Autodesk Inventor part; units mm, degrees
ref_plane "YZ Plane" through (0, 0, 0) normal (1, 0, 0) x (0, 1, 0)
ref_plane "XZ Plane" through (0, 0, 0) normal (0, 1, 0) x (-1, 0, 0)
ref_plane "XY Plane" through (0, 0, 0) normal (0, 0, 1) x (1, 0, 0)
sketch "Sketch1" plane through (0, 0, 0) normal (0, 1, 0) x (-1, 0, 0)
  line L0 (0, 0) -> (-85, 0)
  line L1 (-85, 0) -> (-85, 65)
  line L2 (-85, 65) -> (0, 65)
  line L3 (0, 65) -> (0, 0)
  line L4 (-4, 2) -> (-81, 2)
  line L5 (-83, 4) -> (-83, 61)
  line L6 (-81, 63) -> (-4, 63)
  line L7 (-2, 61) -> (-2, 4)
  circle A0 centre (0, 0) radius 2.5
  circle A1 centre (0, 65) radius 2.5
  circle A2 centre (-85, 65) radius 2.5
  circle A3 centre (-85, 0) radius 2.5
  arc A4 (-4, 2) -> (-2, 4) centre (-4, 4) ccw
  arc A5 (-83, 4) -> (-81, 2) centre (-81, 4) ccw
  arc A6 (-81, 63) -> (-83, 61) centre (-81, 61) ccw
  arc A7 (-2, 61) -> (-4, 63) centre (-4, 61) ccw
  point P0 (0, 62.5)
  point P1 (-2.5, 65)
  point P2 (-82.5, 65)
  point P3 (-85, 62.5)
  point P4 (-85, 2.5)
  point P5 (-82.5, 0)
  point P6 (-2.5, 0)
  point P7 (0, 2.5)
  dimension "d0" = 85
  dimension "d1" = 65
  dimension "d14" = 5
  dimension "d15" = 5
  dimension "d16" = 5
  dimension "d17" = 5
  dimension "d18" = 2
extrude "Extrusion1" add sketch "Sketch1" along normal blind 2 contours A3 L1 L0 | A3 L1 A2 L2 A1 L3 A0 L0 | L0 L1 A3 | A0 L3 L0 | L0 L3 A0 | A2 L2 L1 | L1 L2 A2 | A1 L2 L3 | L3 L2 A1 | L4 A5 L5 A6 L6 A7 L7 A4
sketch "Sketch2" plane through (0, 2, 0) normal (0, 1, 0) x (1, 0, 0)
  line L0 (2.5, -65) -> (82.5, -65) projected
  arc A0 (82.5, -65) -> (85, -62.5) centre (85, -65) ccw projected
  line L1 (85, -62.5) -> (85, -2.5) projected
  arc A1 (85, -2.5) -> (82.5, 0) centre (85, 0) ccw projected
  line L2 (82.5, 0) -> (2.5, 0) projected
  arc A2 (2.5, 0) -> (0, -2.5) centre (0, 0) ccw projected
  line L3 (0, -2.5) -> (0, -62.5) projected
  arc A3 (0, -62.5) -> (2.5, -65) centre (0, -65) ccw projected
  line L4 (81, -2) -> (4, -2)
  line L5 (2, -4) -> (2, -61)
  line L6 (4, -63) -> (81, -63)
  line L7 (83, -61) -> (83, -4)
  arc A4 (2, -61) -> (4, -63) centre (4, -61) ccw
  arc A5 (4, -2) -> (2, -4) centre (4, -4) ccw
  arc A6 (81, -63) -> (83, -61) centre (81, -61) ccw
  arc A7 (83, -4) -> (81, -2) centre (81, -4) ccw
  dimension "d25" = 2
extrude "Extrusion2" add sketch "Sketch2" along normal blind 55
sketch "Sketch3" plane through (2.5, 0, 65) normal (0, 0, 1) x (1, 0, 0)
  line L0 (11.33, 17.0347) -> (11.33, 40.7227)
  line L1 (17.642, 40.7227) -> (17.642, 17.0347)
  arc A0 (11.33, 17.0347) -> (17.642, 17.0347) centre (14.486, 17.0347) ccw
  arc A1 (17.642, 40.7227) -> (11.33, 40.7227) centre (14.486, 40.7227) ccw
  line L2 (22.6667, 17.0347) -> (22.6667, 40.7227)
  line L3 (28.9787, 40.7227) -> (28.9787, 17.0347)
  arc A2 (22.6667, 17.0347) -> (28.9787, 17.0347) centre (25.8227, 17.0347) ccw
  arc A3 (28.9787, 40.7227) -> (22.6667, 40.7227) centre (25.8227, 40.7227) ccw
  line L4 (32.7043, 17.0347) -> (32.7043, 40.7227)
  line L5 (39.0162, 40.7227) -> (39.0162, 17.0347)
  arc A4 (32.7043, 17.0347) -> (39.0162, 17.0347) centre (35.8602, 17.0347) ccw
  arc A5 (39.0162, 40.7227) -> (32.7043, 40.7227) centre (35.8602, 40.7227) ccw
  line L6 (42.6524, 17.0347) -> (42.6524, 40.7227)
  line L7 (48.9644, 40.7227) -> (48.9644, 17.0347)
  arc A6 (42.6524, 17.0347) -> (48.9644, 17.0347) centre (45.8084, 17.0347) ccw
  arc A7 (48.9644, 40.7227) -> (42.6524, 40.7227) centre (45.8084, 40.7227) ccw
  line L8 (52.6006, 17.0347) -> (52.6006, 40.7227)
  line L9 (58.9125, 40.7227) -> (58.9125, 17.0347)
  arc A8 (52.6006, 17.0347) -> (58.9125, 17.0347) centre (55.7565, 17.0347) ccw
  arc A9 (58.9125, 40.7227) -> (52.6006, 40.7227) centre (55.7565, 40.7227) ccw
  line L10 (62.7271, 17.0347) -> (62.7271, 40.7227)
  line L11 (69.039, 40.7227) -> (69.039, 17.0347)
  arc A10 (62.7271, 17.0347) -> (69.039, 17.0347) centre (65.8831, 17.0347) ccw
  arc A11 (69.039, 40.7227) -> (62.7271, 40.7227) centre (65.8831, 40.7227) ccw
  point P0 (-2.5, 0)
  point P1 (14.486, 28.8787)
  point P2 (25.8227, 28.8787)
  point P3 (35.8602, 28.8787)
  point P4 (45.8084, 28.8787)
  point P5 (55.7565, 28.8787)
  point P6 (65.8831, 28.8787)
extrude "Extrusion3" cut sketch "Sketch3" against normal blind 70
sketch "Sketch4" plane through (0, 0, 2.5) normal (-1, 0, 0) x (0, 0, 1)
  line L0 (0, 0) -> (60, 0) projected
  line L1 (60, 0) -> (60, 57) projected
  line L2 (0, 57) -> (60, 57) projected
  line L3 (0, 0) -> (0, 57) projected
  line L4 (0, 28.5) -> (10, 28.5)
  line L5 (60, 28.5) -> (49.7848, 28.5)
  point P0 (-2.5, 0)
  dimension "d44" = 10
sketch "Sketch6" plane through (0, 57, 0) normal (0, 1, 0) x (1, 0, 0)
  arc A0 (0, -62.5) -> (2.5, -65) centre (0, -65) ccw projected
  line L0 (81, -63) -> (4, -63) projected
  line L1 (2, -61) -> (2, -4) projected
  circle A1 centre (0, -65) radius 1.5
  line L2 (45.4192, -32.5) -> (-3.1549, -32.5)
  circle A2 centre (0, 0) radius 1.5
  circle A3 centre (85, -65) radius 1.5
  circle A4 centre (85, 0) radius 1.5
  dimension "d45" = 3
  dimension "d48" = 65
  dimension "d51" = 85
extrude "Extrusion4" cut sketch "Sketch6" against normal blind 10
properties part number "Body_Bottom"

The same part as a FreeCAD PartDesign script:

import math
import FreeCAD as App
import Part
import Sketcher

doc = App.newDocument("Part")
params = doc.addObject("Spreadsheet::Sheet", "Params")
for row, (alias, value) in enumerate([
    ("sketch1_radius", "2.5 mm"),
    ("pad1_length", "2 mm"),
    ("sketch2_radius", "2 mm"),
    ("sketch2_radius2", "2.5 mm"),
    ("sketch2_width", "80 mm"),
    ("sketch2_height", "60 mm"),
    ("pad2_length", "55 mm"),
    ("pocket1_length", "70 mm"),
    ("sketch4_diameter", "3 mm"),
    ("pocket2_length", "10 mm"),
], start=1):
    params.set(f"A{row}", alias)
    params.set(f"B{row}", "=" + value)
    params.setAlias(f"B{row}", alias)

body = doc.addObject("PartDesign::Body", "Body")

# Sketch on XZ plane
sketch1 = body.newObject("Sketcher::SketchObject", "Sketch")
sketch1.AttachmentSupport = (doc.getObject("XZ_Plane"), [""])
sketch1.MapMode = "FlatFace"
sketch1.addGeometry([
    Part.ArcOfCircle(Part.Circle(App.Vector(85, 0, 0), App.Vector(0, 0, 1), 2.5), math.radians(180), math.radians(450)),  # 0
    Part.LineSegment(App.Vector(82.5, 0, 0), App.Vector(2.5, 0, 0)),  # 1
    Part.ArcOfCircle(Part.Circle(App.Vector(0, 0, 0), App.Vector(0, 0, 1), 2.5), math.radians(90), math.radians(360)),  # 2
    Part.LineSegment(App.Vector(0, 2.5, 0), App.Vector(0, 62.5, 0)),  # 3
    Part.ArcOfCircle(Part.Circle(App.Vector(0, 65, 0), App.Vector(0, 0, 1), 2.5), math.radians(0), math.radians(270)),  # 4
    Part.LineSegment(App.Vector(2.5, 65, 0), App.Vector(82.5, 65, 0)),  # 5
    Part.ArcOfCircle(Part.Circle(App.Vector(85, 65, 0), App.Vector(0, 0, 1), 2.5), math.radians(-90), math.radians(180)),  # 6
    Part.LineSegment(App.Vector(85, 62.5, 0), App.Vector(85, 2.5, 0)),  # 7
], False)
sketch1.addConstraint([
    Sketcher.Constraint("Coincident", 0, 1, 1, 1),
    Sketcher.Constraint("Coincident", 1, 2, 2, 2),
    Sketcher.Constraint("Coincident", 2, 1, 3, 1),
    Sketcher.Constraint("Coincident", 3, 2, 4, 2),
    Sketcher.Constraint("Coincident", 4, 1, 5, 1),
    Sketcher.Constraint("Coincident", 5, 2, 6, 2),
    Sketcher.Constraint("Coincident", 6, 1, 7, 1),
    Sketcher.Constraint("Coincident", 7, 2, 0, 2),
    Sketcher.Constraint("Horizontal", 1),
    Sketcher.Constraint("Vertical", 3),
    Sketcher.Constraint("Horizontal", 5),
    Sketcher.Constraint("Vertical", 7),
    Sketcher.Constraint("Coincident", 2, 3, -1, 1),
    Sketcher.Constraint("Equal", 0, 2),
    Sketcher.Constraint("Equal", 2, 4),
    Sketcher.Constraint("Equal", 4, 6),
    Sketcher.Constraint("PointOnObject", 0, 3, -1),
    Sketcher.Constraint("PointOnObject", 4, 3, -2),
    Sketcher.Constraint("PointOnObject", 0, 1, -1),
    Sketcher.Constraint("PointOnObject", 2, 1, -2),
    Sketcher.Constraint("Horizontal", 4, 3, 6, 3),
    Sketcher.Constraint("Horizontal", 6, 3, 4, 1),
    Sketcher.Constraint("Vertical", 0, 3, 6, 3),
    Sketcher.Constraint("Vertical", 0, 3, 6, 1),
    Sketcher.Constraint("Radius", 0, 2.5),
    Sketcher.Constraint("DistanceX", -1, 1, 0, 3, 85.0),
    Sketcher.Constraint("DistanceY", -1, 1, 4, 3, 65.0),
])
sketch1.setExpression("Constraints[24]", "Params.sketch1_radius")
pad1 = body.newObject("PartDesign::Pad", "Pad")
pad1.Profile = sketch1
pad1.setExpression("Length", "Params.pad1_length")
pad1.Reversed = True

# Sketch on XZ plane
sketch2 = body.newObject("Sketcher::SketchObject", "Sketch001")
sketch2.AttachmentSupport = (doc.getObject("XZ_Plane"), [""])
sketch2.MapMode = "FlatFace"
sketch2.AttachmentOffset = App.Placement(App.Vector(0, 0, -2), App.Rotation())
sketch2.addGeometry([
    Part.ArcOfCircle(Part.Circle(App.Vector(0, 65, 0), App.Vector(0, 0, 1), 2.5), math.radians(0), math.radians(270)),  # 0
    Part.LineSegment(App.Vector(2.5, 65, 0), App.Vector(82.5, 65, 0)),  # 1
    Part.ArcOfCircle(Part.Circle(App.Vector(85, 65, 0), App.Vector(0, 0, 1), 2.5), math.radians(-90), math.radians(180)),  # 2
    Part.LineSegment(App.Vector(85, 62.5, 0), App.Vector(85, 2.5, 0)),  # 3
    Part.ArcOfCircle(Part.Circle(App.Vector(85, 0, 0), App.Vector(0, 0, 1), 2.5), math.radians(180), math.radians(450)),  # 4
    Part.LineSegment(App.Vector(82.5, 0, 0), App.Vector(2.5, 0, 0)),  # 5
    Part.ArcOfCircle(Part.Circle(App.Vector(0, 0, 0), App.Vector(0, 0, 1), 2.5), math.radians(90), math.radians(360)),  # 6
    Part.LineSegment(App.Vector(0, 2.5, 0), App.Vector(0, 62.5, 0)),  # 7
    Part.LineSegment(App.Vector(4, 2, 0), App.Vector(81, 2, 0)),  # 8
    Part.ArcOfCircle(Part.Circle(App.Vector(81, 4, 0), App.Vector(0, 0, 1), 2), math.radians(-90), math.radians(0)),  # 9
    Part.LineSegment(App.Vector(83, 4, 0), App.Vector(83, 61, 0)),  # 10
    Part.ArcOfCircle(Part.Circle(App.Vector(81, 61, 0), App.Vector(0, 0, 1), 2), math.radians(0), math.radians(90)),  # 11
    Part.LineSegment(App.Vector(81, 63, 0), App.Vector(4, 63, 0)),  # 12
    Part.ArcOfCircle(Part.Circle(App.Vector(4, 61, 0), App.Vector(0, 0, 1), 2), math.radians(90), math.radians(180)),  # 13
    Part.LineSegment(App.Vector(2, 61, 0), App.Vector(2, 4, 0)),  # 14
    Part.ArcOfCircle(Part.Circle(App.Vector(4, 4, 0), App.Vector(0, 0, 1), 2), math.radians(180), math.radians(270)),  # 15
], False)
sketch2.addConstraint([
    Sketcher.Constraint("Coincident", 0, 1, 1, 1),
    Sketcher.Constraint("Coincident", 1, 2, 2, 2),
    Sketcher.Constraint("Coincident", 2, 1, 3, 1),
    Sketcher.Constraint("Coincident", 3, 2, 4, 2),
    Sketcher.Constraint("Coincident", 4, 1, 5, 1),
    Sketcher.Constraint("Coincident", 5, 2, 6, 2),
    Sketcher.Constraint("Coincident", 6, 1, 7, 1),
    Sketcher.Constraint("Coincident", 7, 2, 0, 2),
    Sketcher.Constraint("Tangent", 8, 2, 9, 1),
    Sketcher.Constraint("Tangent", 9, 2, 10, 1),
    Sketcher.Constraint("Tangent", 10, 2, 11, 1),
    Sketcher.Constraint("Tangent", 11, 2, 12, 1),
    Sketcher.Constraint("Tangent", 12, 2, 13, 1),
    Sketcher.Constraint("Tangent", 13, 2, 14, 1),
    Sketcher.Constraint("Tangent", 14, 2, 15, 1),
    Sketcher.Constraint("Tangent", 15, 2, 8, 1),
    Sketcher.Constraint("Horizontal", 1),
    Sketcher.Constraint("Vertical", 3),
    Sketcher.Constraint("Horizontal", 5),
    Sketcher.Constraint("Vertical", 7),
    Sketcher.Constraint("Horizontal", 8),
    Sketcher.Constraint("Vertical", 10),
    Sketcher.Constraint("Horizontal", 12),
    Sketcher.Constraint("Vertical", 14),
    Sketcher.Constraint("Coincident", 6, 3, -1, 1),
    Sketcher.Constraint("Equal", 0, 2),
    Sketcher.Constraint("Equal", 2, 4),
    Sketcher.Constraint("Equal", 4, 6),
    Sketcher.Constraint("Equal", 9, 11),
    Sketcher.Constraint("Equal", 11, 13),
    Sketcher.Constraint("Equal", 13, 15),
    Sketcher.Constraint("PointOnObject", 0, 3, -2),
    Sketcher.Constraint("PointOnObject", 4, 3, -1),
    Sketcher.Constraint("PointOnObject", 4, 1, -1),
    Sketcher.Constraint("PointOnObject", 6, 1, -2),
    Sketcher.Constraint("Horizontal", 0, 3, 2, 3),
    Sketcher.Constraint("Horizontal", 2, 3, 0, 1),
    Sketcher.Constraint("Vertical", 2, 3, 4, 3),
    Sketcher.Constraint("Vertical", 4, 3, 2, 1),
    Sketcher.Constraint("Radius", 9, 2.0),
    Sketcher.Constraint("DistanceY", -1, 1, 8, 2, 2.0),
    Sketcher.Constraint("DistanceX", -1, 1, 13, 2, 2.0),
    Sketcher.Constraint("DistanceX", 9, 2, 3, 2, 2.0),
    Sketcher.Constraint("DistanceY", 11, 2, 1, 2, 2.0),
    Sketcher.Constraint("Radius", 0, 2.5),
    Sketcher.Constraint("DistanceX", 1, 1, 1, 2, 80.0),
    Sketcher.Constraint("DistanceY", 3, 2, 3, 1, 60.0),
])
sketch2.setExpression("Constraints[39]", "Params.sketch2_radius")
sketch2.setExpression("Constraints[44]", "Params.sketch2_radius2")
sketch2.setExpression("Constraints[45]", "Params.sketch2_width")
sketch2.setExpression("Constraints[46]", "Params.sketch2_height")
pad2 = body.newObject("PartDesign::Pad", "Pad001")
pad2.Profile = sketch2
pad2.setExpression("Length", "Params.pad2_length")
pad2.Reversed = True

# Sketch on XY plane
sketch3 = body.newObject("Sketcher::SketchObject", "Sketch002")
sketch3.AttachmentSupport = (doc.getObject("XY_Plane"), [""])
sketch3.MapMode = "FlatFace"
sketch3.AttachmentOffset = App.Placement(App.Vector(0, 0, 65), App.Rotation())
sketch3.addGeometry([
    Part.LineSegment(App.Vector(13.8, 40.7, 0), App.Vector(13.8, 17, 0)),  # 0
    Part.ArcOfCircle(Part.Circle(App.Vector(17, 17, 0), App.Vector(0, 0, 1), 3.2), math.radians(180), math.radians(360)),  # 1
    Part.LineSegment(App.Vector(20.1, 17, 0), App.Vector(20.1, 40.7, 0)),  # 2
    Part.ArcOfCircle(Part.Circle(App.Vector(17, 40.7, 0), App.Vector(0, 0, 1), 3.2), math.radians(0), math.radians(180)),  # 3
    Part.LineSegment(App.Vector(25.2, 40.7, 0), App.Vector(25.2, 17, 0)),  # 4
    Part.ArcOfCircle(Part.Circle(App.Vector(28.3, 17, 0), App.Vector(0, 0, 1), 3.2), math.radians(180), math.radians(360)),  # 5
    Part.LineSegment(App.Vector(31.5, 17, 0), App.Vector(31.5, 40.7, 0)),  # 6
    Part.ArcOfCircle(Part.Circle(App.Vector(28.3, 40.7, 0), App.Vector(0, 0, 1), 3.2), math.radians(0), math.radians(180)),  # 7
    Part.LineSegment(App.Vector(35.2, 40.7, 0), App.Vector(35.2, 17, 0)),  # 8
    Part.ArcOfCircle(Part.Circle(App.Vector(38.4, 17, 0), App.Vector(0, 0, 1), 3.2), math.radians(180), math.radians(360)),  # 9
    Part.LineSegment(App.Vector(41.5, 17, 0), App.Vector(41.5, 40.7, 0)),  # 10
    Part.ArcOfCircle(Part.Circle(App.Vector(38.4, 40.7, 0), App.Vector(0, 0, 1), 3.2), math.radians(0), math.radians(180)),  # 11
    Part.LineSegment(App.Vector(45.2, 40.7, 0), App.Vector(45.2, 17, 0)),  # 12
    Part.ArcOfCircle(Part.Circle(App.Vector(48.3, 17, 0), App.Vector(0, 0, 1), 3.2), math.radians(180), math.radians(360)),  # 13
    Part.LineSegment(App.Vector(51.5, 17, 0), App.Vector(51.5, 40.7, 0)),  # 14
    Part.ArcOfCircle(Part.Circle(App.Vector(48.3, 40.7, 0), App.Vector(0, 0, 1), 3.2), math.radians(0), math.radians(180)),  # 15
    Part.LineSegment(App.Vector(55.1, 40.7, 0), App.Vector(55.1, 17, 0)),  # 16
    Part.ArcOfCircle(Part.Circle(App.Vector(58.3, 17, 0), App.Vector(0, 0, 1), 3.2), math.radians(180), math.radians(360)),  # 17
    Part.LineSegment(App.Vector(61.4, 17, 0), App.Vector(61.4, 40.7, 0)),  # 18
    Part.ArcOfCircle(Part.Circle(App.Vector(58.3, 40.7, 0), App.Vector(0, 0, 1), 3.2), math.radians(0), math.radians(180)),  # 19
    Part.LineSegment(App.Vector(65.2, 40.7, 0), App.Vector(65.2, 17, 0)),  # 20
    Part.ArcOfCircle(Part.Circle(App.Vector(68.4, 17, 0), App.Vector(0, 0, 1), 3.2), math.radians(180), math.radians(360)),  # 21
    Part.LineSegment(App.Vector(71.5, 17, 0), App.Vector(71.5, 40.7, 0)),  # 22
    Part.ArcOfCircle(Part.Circle(App.Vector(68.4, 40.7, 0), App.Vector(0, 0, 1), 3.2), math.radians(0), math.radians(180)),  # 23
], False)
sketch3.addConstraint([
    Sketcher.Constraint("Tangent", 0, 2, 1, 1),
    Sketcher.Constraint("Tangent", 1, 2, 2, 1),
    Sketcher.Constraint("Tangent", 2, 2, 3, 1),
    Sketcher.Constraint("Tangent", 3, 2, 0, 1),
    Sketcher.Constraint("Tangent", 4, 2, 5, 1),
    Sketcher.Constraint("Tangent", 5, 2, 6, 1),
    Sketcher.Constraint("Tangent", 6, 2, 7, 1),
    Sketcher.Constraint("Tangent", 7, 2, 4, 1),
    Sketcher.Constraint("Tangent", 8, 2, 9, 1),
    Sketcher.Constraint("Tangent", 9, 2, 10, 1),
    Sketcher.Constraint("Tangent", 10, 2, 11, 1),
    Sketcher.Constraint("Tangent", 11, 2, 8, 1),
    Sketcher.Constraint("Tangent", 12, 2, 13, 1),
    Sketcher.Constraint("Tangent", 13, 2, 14, 1),
    Sketcher.Constraint("Tangent", 14, 2, 15, 1),
    Sketcher.Constraint("Tangent", 15, 2, 12, 1),
    Sketcher.Constraint("Tangent", 16, 2, 17, 1),
    Sketcher.Constraint("Tangent", 17, 2, 18, 1),
    Sketcher.Constraint("Tangent", 18, 2, 19, 1),
    Sketcher.Constraint("Tangent", 19, 2, 16, 1),
    Sketcher.Constraint("Tangent", 20, 2, 21, 1),
    Sketcher.Constraint("Tangent", 21, 2, 22, 1),
    Sketcher.Constraint("Tangent", 22, 2, 23, 1),
    Sketcher.Constraint("Tangent", 23, 2, 20, 1),
    Sketcher.Constraint("Vertical", 0),
    Sketcher.Constraint("Vertical", 2),
    Sketcher.Constraint("Vertical", 4),
    Sketcher.Constraint("Vertical", 6),
    Sketcher.Constraint("Vertical", 8),
    Sketcher.Constraint("Vertical", 10),
    Sketcher.Constraint("Vertical", 12),
    Sketcher.Constraint("Vertical", 14),
    Sketcher.Constraint("Vertical", 16),
    Sketcher.Constraint("Vertical", 18),
    Sketcher.Constraint("Vertical", 20),
    Sketcher.Constraint("Vertical", 22),
    Sketcher.Constraint("Equal", 3, 5),
    Sketcher.Constraint("Equal", 7, 9),
    Sketcher.Constraint("Equal", 11, 13),
    Sketcher.Constraint("Equal", 15, 17),
    Sketcher.Constraint("Equal", 19, 21),
    Sketcher.Constraint("Horizontal", 1, 3, 5, 3),
    Sketcher.Constraint("Horizontal", 3, 3, 7, 3),
    Sketcher.Constraint("Horizontal", 5, 3, 9, 3),
    Sketcher.Constraint("Horizontal", 7, 3, 11, 3),
    Sketcher.Constraint("Horizontal", 9, 3, 13, 3),
    Sketcher.Constraint("Horizontal", 11, 3, 15, 3),
    Sketcher.Constraint("Horizontal", 13, 3, 17, 3),
    Sketcher.Constraint("Horizontal", 15, 3, 19, 3),
    Sketcher.Constraint("Horizontal", 17, 3, 21, 3),
    Sketcher.Constraint("Horizontal", 19, 3, 23, 3),
    Sketcher.Constraint("Radius", 1, 3.156),
    Sketcher.Constraint("DistanceY", 0, 2, 0, 1, 23.688),
    Sketcher.Constraint("DistanceX", -1, 1, 0, 2, 13.83),
    Sketcher.Constraint("DistanceX", 15, 2, 18, 2, 16.26),
    Sketcher.Constraint("DistanceX", -1, 1, 21, 3, 68.383),
    Sketcher.Constraint("DistanceX", -1, 1, 9, 2, 41.516),
    Sketcher.Constraint("DistanceX", 8, 2, 13, 3, 13.104),
    Sketcher.Constraint("DistanceY", -1, 1, 1, 3, 17.0347),
    Sketcher.Constraint("DistanceX", -1, 1, 5, 3, 28.3227),
])
pocket1 = body.newObject("PartDesign::Pocket", "Pocket")
pocket1.Profile = sketch3
pocket1.setExpression("Length", "Params.pocket1_length")

# Sketch on XZ plane
sketch4 = body.newObject("Sketcher::SketchObject", "Sketch003")
sketch4.AttachmentSupport = (doc.getObject("XZ_Plane"), [""])
sketch4.MapMode = "FlatFace"
sketch4.AttachmentOffset = App.Placement(App.Vector(0, 0, -57), App.Rotation())
sketch4.addGeometry([
    Part.Circle(App.Vector(0, 65, 0), App.Vector(0, 0, 1), 1.5),
    Part.Circle(App.Vector(0, 0, 0), App.Vector(0, 0, 1), 1.5),
    Part.Circle(App.Vector(85, 65, 0), App.Vector(0, 0, 1), 1.5),
    Part.Circle(App.Vector(85, 0, 0), App.Vector(0, 0, 1), 1.5),
], False)
sketch4.addConstraint([
    Sketcher.Constraint("Coincident", 1, 3, -1, 1),
    Sketcher.Constraint("Equal", 0, 1),
    Sketcher.Constraint("Equal", 1, 2),
    Sketcher.Constraint("Equal", 2, 3),
    Sketcher.Constraint("PointOnObject", 0, 3, -2),
    Sketcher.Constraint("PointOnObject", 3, 3, -1),
    Sketcher.Constraint("Horizontal", 0, 3, 2, 3),
    Sketcher.Constraint("Vertical", 2, 3, 3, 3),
    Sketcher.Constraint("Diameter", 0, 3.0),
    Sketcher.Constraint("DistanceY", -1, 1, 0, 3, 65.0),
    Sketcher.Constraint("DistanceX", -1, 1, 2, 3, 85.0),
])
sketch4.setExpression("Constraints[8]", "Params.sketch4_diameter")
pocket2 = body.newObject("PartDesign::Pocket", "Pocket001")
pocket2.Profile = sketch4
pocket2.setExpression("Length", "Params.pocket2_length")
pocket2.Reversed = True

doc.recompute()
